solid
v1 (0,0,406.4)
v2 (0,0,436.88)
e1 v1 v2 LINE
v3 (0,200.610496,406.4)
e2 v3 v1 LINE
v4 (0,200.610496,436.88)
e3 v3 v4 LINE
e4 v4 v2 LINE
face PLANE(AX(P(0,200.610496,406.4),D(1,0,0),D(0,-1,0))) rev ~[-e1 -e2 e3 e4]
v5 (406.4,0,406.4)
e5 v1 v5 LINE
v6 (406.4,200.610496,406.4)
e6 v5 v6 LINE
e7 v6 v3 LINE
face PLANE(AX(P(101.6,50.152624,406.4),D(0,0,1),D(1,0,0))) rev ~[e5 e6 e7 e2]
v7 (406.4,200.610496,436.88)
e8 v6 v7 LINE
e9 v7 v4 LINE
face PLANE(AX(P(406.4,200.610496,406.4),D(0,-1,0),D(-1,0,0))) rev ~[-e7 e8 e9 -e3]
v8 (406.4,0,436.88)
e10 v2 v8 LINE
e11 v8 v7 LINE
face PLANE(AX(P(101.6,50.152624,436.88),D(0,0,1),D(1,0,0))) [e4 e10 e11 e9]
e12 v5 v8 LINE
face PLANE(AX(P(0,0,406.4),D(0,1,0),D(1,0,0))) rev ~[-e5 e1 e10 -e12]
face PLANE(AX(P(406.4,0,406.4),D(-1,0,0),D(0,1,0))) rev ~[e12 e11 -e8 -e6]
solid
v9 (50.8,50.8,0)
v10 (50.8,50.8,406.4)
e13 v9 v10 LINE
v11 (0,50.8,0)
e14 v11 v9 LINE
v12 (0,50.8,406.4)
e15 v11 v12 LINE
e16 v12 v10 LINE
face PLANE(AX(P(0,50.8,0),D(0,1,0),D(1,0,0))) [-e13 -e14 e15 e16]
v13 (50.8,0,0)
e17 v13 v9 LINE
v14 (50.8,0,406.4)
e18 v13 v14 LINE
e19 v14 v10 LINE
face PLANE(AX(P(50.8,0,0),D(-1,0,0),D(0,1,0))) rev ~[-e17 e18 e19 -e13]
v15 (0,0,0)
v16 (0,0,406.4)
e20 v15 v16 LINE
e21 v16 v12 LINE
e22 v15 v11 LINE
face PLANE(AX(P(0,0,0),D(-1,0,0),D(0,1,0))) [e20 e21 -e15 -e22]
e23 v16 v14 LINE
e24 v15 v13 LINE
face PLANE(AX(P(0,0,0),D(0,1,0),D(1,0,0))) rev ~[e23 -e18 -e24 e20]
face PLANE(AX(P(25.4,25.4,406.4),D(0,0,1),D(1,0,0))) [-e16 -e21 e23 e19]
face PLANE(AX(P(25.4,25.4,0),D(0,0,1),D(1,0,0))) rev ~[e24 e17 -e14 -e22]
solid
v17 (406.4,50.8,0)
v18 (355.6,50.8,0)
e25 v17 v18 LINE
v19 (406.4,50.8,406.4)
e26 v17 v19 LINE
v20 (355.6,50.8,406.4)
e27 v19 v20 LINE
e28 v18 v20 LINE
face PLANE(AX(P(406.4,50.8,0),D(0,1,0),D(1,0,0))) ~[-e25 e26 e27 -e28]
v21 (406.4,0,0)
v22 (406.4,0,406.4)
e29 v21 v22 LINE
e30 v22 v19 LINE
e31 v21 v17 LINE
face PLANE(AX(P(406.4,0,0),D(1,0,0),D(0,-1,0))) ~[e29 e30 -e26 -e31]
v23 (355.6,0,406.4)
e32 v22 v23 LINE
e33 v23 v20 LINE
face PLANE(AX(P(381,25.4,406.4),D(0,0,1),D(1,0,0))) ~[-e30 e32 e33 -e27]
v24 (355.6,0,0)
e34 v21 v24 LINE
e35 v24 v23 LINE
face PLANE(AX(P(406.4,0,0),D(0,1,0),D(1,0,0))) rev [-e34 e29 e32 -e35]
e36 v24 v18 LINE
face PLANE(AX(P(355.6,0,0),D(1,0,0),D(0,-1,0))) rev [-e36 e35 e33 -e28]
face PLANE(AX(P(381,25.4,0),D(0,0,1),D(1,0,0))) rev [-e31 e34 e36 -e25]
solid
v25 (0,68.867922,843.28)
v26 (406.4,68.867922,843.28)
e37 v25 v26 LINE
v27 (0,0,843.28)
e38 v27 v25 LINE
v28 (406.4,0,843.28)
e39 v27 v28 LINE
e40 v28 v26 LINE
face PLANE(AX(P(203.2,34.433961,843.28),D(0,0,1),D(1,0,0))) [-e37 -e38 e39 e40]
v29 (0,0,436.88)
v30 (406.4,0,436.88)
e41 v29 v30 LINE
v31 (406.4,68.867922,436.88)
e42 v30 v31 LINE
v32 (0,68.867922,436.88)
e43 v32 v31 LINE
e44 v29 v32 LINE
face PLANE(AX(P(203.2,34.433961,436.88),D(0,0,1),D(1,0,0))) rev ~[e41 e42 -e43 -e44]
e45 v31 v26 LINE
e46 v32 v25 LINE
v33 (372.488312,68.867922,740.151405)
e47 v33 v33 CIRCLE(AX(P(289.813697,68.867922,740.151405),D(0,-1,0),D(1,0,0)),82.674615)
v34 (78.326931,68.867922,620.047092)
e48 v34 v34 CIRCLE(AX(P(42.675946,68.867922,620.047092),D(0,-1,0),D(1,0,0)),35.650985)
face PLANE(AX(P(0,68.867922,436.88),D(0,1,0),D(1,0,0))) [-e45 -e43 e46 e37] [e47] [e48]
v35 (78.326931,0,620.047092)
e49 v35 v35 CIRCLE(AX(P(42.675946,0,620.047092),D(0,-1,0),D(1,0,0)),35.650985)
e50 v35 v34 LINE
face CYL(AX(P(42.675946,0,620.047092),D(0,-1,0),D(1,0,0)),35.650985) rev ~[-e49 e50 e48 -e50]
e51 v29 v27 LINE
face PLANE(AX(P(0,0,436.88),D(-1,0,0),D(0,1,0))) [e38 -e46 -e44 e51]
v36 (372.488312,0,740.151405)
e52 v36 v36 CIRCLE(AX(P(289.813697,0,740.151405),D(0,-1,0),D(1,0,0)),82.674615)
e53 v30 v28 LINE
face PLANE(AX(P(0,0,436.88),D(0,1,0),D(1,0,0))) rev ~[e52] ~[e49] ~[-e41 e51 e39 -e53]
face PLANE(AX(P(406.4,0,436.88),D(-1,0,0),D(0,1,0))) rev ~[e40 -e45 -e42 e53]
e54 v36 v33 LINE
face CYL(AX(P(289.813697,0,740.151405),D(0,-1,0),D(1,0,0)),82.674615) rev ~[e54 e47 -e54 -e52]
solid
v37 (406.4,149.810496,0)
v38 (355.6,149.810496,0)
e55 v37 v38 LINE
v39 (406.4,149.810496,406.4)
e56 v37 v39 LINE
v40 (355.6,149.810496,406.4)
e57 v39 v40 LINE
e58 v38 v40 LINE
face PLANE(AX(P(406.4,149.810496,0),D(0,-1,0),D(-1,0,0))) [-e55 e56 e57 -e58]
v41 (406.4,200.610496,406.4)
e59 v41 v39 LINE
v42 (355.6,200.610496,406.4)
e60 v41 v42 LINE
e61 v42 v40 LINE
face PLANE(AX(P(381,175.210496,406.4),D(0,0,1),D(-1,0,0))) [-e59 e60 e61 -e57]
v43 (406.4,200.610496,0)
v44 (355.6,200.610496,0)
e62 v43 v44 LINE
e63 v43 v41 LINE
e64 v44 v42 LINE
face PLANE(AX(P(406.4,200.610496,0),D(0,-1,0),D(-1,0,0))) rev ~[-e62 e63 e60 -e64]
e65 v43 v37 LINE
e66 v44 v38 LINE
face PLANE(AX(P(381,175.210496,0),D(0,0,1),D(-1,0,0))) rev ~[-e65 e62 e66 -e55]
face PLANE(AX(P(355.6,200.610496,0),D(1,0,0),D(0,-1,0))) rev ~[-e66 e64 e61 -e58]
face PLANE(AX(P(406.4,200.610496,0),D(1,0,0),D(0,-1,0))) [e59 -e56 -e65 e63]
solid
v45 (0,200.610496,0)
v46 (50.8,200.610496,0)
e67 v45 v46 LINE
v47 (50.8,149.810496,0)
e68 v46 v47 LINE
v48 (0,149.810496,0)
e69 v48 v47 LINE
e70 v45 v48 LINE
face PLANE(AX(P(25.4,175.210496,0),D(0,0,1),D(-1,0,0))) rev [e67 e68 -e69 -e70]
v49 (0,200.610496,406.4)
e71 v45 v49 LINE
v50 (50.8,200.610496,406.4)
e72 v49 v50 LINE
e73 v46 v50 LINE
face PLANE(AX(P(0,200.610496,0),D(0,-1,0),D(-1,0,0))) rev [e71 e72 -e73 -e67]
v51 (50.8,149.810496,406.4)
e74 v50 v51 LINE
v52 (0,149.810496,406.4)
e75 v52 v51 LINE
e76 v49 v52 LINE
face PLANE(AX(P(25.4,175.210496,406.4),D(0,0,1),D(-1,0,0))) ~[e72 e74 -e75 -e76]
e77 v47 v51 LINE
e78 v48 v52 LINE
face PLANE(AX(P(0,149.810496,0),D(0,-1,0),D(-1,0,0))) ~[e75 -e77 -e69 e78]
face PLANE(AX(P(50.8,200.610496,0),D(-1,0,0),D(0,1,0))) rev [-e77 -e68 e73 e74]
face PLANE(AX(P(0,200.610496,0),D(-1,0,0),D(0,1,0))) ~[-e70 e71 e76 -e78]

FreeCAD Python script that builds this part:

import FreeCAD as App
import Part
import Sketcher
from FreeCAD import Vector
Q = App.Units.Quantity

doc = App.newDocument("Part")
body = doc.addObject("PartDesign::Body", "Body")

sketch1 = doc.addObject("Sketcher::SketchObject", "Sketch")
body.addObject(sketch1)
sketch1.AttachmentSupport = (doc.XY_Plane, [""])
sketch1.MapMode = "FlatFace"
sketch1.addGeometry([
    Part.LineSegment(Vector(0, 51, 0), Vector(0, 0, 0)),
    Part.LineSegment(Vector(0, 0, 0), Vector(51, 0, 0)),
    Part.LineSegment(Vector(51, 0, 0), Vector(51, 51, 0)),
    Part.LineSegment(Vector(51, 51, 0), Vector(0, 51, 0)),
], False)
sketch1.addConstraint([
    Sketcher.Constraint("Coincident", 0, 2, 1, 1),
    Sketcher.Constraint("Coincident", 1, 2, 2, 1),
    Sketcher.Constraint("Coincident", 2, 2, 3, 1),
    Sketcher.Constraint("Coincident", 3, 2, 0, 1),
    Sketcher.Constraint("Vertical", 0),
    Sketcher.Constraint("Horizontal", 1),
    Sketcher.Constraint("Vertical", 2),
    Sketcher.Constraint("Horizontal", 3),
    Sketcher.Constraint("Coincident", 0, 2, -1, 1),
    Sketcher.Constraint("Equal", 3, 0),
    Sketcher.Constraint("DistanceX", 1, 1, 1, 2, Q("2 in")),
])
pad1 = doc.addObject("PartDesign::Pad", "Pad")
body.addObject(pad1)
pad1.Profile = sketch1
pad1.Length = Q("16 in")
body2 = doc.addObject("PartDesign::Body", "Body001")
doc.recompute()

mirroring = doc.addObject("Part::Mirroring", "Mirroring")
mirroring.Source = body
mirroring.Base = Vector(203.2, 0, 0)
mirroring.Normal = Vector(1, 0, 0)
body2.BaseFeature = mirroring
doc.recompute()
body3 = doc.addObject("PartDesign::Body", "Body002")
doc.recompute()

mirroring2 = doc.addObject("Part::Mirroring", "Mirroring001")
mirroring2.Source = body2
mirroring2.Base = Vector(0, 100.305248, 0)
mirroring2.Normal = Vector(0, -1, 0)
body3.BaseFeature = mirroring2
doc.recompute()
body4 = doc.addObject("PartDesign::Body", "Body003")
doc.recompute()

mirroring3 = doc.addObject("Part::Mirroring", "Mirroring002")
mirroring3.Source = body
mirroring3.Base = Vector(0, 100.305248, 0)
mirroring3.Normal = Vector(0, -1, 0)
body4.BaseFeature = mirroring3
doc.recompute()
body5 = doc.addObject("PartDesign::Body", "Body004")

sketch2 = doc.addObject("Sketcher::SketchObject", "Sketch001")
body5.addObject(sketch2)
sketch2.AttachmentSupport = (doc.getObject("XY_Plane004"), [""])
sketch2.MapMode = "FlatFace"
sketch2.AttachmentOffset = App.Placement(Vector(0, 0, 16 * 25.4), App.Rotation())
sketch2.addGeometry([
    Part.LineSegment(Vector(0, 0, 0), Vector(406, 0, 0)),
    Part.LineSegment(Vector(406, 0, 0), Vector(406, 201, 0)),
    Part.LineSegment(Vector(406, 201, 0), Vector(0, 201, 0)),
    Part.LineSegment(Vector(0, 201, 0), Vector(0, 0, 0)),
], False)
sketch2.addConstraint([
    Sketcher.Constraint("Coincident", 0, 2, 1, 1),
    Sketcher.Constraint("Coincident", 1, 2, 2, 1),
    Sketcher.Constraint("Coincident", 2, 2, 3, 1),
    Sketcher.Constraint("Coincident", 3, 2, 0, 1),
    Sketcher.Constraint("Horizontal", 0),
    Sketcher.Constraint("Vertical", 1),
    Sketcher.Constraint("Horizontal", 2),
    Sketcher.Constraint("Vertical", 3),
    Sketcher.Constraint("Coincident", 3, 2, -1, 1),
    Sketcher.Constraint("DistanceX", 0, 1, 0, 2, Q("16 in")),
    Sketcher.Constraint("DistanceY", 1, 1, 1, 2, Q("200.610496 mm")),
])
pad2 = doc.addObject("PartDesign::Pad", "Pad001")
body5.addObject(pad2)
pad2.Profile = sketch2
pad2.Length = Q("1.2 in")
body6 = doc.addObject("PartDesign::Body", "Body005")

sketch3 = doc.addObject("Sketcher::SketchObject", "Sketch002")
body6.addObject(sketch3)
sketch3.AttachmentSupport = (doc.getObject("XY_Plane005"), [""])
sketch3.MapMode = "FlatFace"
sketch3.AttachmentOffset = App.Placement(Vector(0, 0, 17.2 * 25.4), App.Rotation())
sketch3.addGeometry([
    Part.LineSegment(Vector(0, 69, 0), Vector(0, 0, 0)),
    Part.LineSegment(Vector(0, 0, 0), Vector(406, 0, 0)),
    Part.LineSegment(Vector(406, 0, 0), Vector(406, 69, 0)),
    Part.LineSegment(Vector(406, 69, 0), Vector(0, 69, 0)),
], False)
sketch3.addConstraint([
    Sketcher.Constraint("Coincident", 0, 2, 1, 1),
    Sketcher.Constraint("Coincident", 1, 2, 2, 1),
    Sketcher.Constraint("Coincident", 2, 2, 3, 1),
    Sketcher.Constraint("Coincident", 3, 2, 0, 1),
    Sketcher.Constraint("Vertical", 0),
    Sketcher.Constraint("Horizontal", 1),
    Sketcher.Constraint("Vertical", 2),
    Sketcher.Constraint("Horizontal", 3),
    Sketcher.Constraint("Coincident", 0, 2, -1, 1),
    Sketcher.Constraint("DistanceX", 1, 1, 1, 2, Q("16 in")),
    Sketcher.Constraint("DistanceY", 0, 2, 0, 1, Q("68.867922 mm")),
])
pad3 = doc.addObject("PartDesign::Pad", "Pad002")
body6.addObject(pad3)
pad3.Profile = sketch3
pad3.Length = Q("16 in")
body7 = doc.addObject("PartDesign::Body", "Body006")

sketch4 = doc.addObject("Sketcher::SketchObject", "Sketch003")
body7.addObject(sketch4)
sketch4.AttachmentSupport = (doc.getObject("XZ_Plane006"), [""])
sketch4.MapMode = "FlatFace"
sketch4.addGeometry(Part.Circle(Vector(43, 620, 0), Vector(0, 0, 1), 36), False)
sketch4.addConstraint([
    Sketcher.Constraint("Diameter", 0, Q("71.30197 mm")),
    Sketcher.Constraint("DistanceX", -1, 1, 0, 3, Q("42.675946 mm")),
    Sketcher.Constraint("DistanceY", -1, 1, 0, 3, Q("620.047092 mm")),
])
pad4 = doc.addObject("PartDesign::Pad", "Pad003")
body7.addObject(pad4)
pad4.Profile = sketch4
pad4.Length = Q("7.6 in")
pad4.Reversed = True
body8 = doc.addObject("PartDesign::Body", "Body007")

sketch5 = doc.addObject("Sketcher::SketchObject", "Sketch004")
body8.addObject(sketch5)
sketch5.AttachmentSupport = (doc.getObject("XZ_Plane007"), [""])
sketch5.MapMode = "FlatFace"
sketch5.addGeometry(Part.Circle(Vector(290, 740, 0), Vector(0, 0, 1), 83), False)
sketch5.addConstraint([
    Sketcher.Constraint("Diameter", 0, Q("165.34923 mm")),
    Sketcher.Constraint("DistanceX", -1, 1, 0, 3, Q("289.813697 mm")),
    Sketcher.Constraint("DistanceY", -1, 1, 0, 3, Q("740.151405 mm")),
])
pad5 = doc.addObject("PartDesign::Pad", "Pad004")
body8.addObject(pad5)
pad5.Profile = sketch5
pad5.Length = Q("7.6 in")
pad5.Reversed = True
doc.recompute()

boolean = doc.addObject("PartDesign::Boolean", "Boolean")
body6.addObject(boolean)
boolean.Type = "Cut"
boolean.addObjects([body8])
doc.recompute()

boolean2 = doc.addObject("PartDesign::Boolean", "Boolean001")
body6.addObject(boolean2)
boolean2.Type = "Cut"
boolean2.addObjects([body7])
mirroring.Visibility = False
mirroring2.Visibility = False
mirroring3.Visibility = False

doc.recompute()
